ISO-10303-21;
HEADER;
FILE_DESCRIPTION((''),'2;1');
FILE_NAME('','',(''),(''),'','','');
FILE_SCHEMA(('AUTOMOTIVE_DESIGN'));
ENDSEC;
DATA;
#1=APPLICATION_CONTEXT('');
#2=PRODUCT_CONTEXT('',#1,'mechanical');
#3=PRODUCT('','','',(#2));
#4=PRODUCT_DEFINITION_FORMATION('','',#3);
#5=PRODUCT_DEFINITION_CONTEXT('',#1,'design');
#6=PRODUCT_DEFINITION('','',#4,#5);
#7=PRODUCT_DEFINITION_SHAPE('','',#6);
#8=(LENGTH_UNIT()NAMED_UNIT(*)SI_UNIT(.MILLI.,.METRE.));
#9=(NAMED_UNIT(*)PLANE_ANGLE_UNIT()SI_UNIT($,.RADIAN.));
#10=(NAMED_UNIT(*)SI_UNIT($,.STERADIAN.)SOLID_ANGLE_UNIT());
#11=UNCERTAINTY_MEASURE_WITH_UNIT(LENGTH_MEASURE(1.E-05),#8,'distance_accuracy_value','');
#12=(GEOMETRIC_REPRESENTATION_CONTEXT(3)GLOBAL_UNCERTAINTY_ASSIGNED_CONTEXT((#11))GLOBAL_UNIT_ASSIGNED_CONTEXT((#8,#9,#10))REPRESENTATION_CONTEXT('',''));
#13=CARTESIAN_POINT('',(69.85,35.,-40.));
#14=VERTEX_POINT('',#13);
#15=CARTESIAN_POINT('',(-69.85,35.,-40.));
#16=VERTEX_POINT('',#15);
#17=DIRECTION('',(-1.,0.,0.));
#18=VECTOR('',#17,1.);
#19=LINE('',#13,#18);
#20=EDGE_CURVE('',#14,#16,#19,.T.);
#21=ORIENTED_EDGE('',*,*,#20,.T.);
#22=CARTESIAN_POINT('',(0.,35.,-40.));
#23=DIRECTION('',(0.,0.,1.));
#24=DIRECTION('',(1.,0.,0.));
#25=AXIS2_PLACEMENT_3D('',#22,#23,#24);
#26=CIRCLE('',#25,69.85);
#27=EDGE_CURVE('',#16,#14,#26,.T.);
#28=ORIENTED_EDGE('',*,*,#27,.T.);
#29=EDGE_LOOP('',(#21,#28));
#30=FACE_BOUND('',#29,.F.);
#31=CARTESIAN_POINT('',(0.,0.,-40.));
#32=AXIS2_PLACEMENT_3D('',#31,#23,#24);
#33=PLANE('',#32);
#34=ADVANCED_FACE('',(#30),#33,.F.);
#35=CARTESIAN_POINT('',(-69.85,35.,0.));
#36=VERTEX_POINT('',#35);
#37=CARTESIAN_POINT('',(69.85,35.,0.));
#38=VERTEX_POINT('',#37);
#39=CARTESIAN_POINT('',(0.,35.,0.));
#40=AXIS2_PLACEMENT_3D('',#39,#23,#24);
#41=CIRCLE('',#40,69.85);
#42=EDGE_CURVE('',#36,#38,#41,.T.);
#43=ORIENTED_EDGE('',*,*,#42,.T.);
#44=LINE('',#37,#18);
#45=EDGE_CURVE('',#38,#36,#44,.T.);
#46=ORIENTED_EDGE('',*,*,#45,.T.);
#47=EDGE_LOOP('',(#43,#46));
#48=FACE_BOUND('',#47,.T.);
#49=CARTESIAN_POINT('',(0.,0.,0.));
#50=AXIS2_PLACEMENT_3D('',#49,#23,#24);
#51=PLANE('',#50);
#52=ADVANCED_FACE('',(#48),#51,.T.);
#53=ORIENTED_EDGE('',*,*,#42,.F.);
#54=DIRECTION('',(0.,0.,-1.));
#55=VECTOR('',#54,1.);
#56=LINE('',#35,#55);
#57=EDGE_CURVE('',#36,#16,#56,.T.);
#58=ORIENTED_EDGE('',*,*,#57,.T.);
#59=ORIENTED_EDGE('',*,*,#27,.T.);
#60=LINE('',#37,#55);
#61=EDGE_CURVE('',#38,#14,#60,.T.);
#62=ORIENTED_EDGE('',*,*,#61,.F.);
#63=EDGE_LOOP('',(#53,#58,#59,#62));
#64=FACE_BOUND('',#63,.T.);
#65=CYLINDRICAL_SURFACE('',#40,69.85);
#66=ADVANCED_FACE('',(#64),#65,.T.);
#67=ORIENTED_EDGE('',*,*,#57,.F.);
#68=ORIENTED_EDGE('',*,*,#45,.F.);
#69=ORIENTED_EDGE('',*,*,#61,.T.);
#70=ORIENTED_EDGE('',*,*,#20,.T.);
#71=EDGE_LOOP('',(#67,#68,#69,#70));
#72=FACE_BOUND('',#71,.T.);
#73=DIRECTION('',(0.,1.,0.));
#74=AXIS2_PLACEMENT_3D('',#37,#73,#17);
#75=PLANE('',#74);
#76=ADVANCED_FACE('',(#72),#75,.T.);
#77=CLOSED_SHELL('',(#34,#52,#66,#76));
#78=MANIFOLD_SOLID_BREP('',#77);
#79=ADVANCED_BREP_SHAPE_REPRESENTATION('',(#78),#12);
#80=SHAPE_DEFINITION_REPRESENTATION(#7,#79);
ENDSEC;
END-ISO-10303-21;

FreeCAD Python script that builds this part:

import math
import FreeCAD as App
import Part
import Sketcher

V = App.Vector
Q = App.Units.Quantity

doc = App.newDocument("Part")
body = doc.addObject("PartDesign::Body", "Body")

# Sketch on XY plane
sketch1 = body.newObject("Sketcher::SketchObject", "Sketch")
sketch1.AttachmentSupport = (doc.getObject("XY_Plane"), [""])
sketch1.MapMode = "FlatFace"
sketch1.addGeometry(Part.LineSegment(V(-70, 35, 0), V(-70, -35, 0)), False)
sketch1.addGeometry(Part.LineSegment(V(-70, -35, 0), V(70, -35, 0)), False)
sketch1.addGeometry(Part.LineSegment(V(70, -35, 0), V(70, 35, 0)), False)
sketch1.addGeometry(Part.LineSegment(V(70, 35, 0), V(-70, 35, 0)), False)
sketch1.addConstraint(Sketcher.Constraint("Coincident", 0, 2, 1, 1))
sketch1.addConstraint(Sketcher.Constraint("Coincident", 1, 2, 2, 1))
sketch1.addConstraint(Sketcher.Constraint("Coincident", 2, 2, 3, 1))
sketch1.addConstraint(Sketcher.Constraint("Coincident", 3, 2, 0, 1))
sketch1.addConstraint(Sketcher.Constraint("Vertical", 0))
sketch1.addConstraint(Sketcher.Constraint("Horizontal", 1))
sketch1.addConstraint(Sketcher.Constraint("Vertical", 2))
sketch1.addConstraint(Sketcher.Constraint("Horizontal", 3))
sketch1.addConstraint(Sketcher.Constraint("Symmetric", 0, 2, 2, 2, -1, 1))
sketch1.addConstraint(Sketcher.Constraint("DistanceX", 1, 1, 1, 2, Q("5.5 in")))
sketch1.addConstraint(Sketcher.Constraint("DistanceY", 0, 2, 0, 1, Q("2.7559 in")))
pad1 = body.newObject("PartDesign::Pad", "Pad")
pad1.Profile = sketch1
pad1.Length = Q("1.5748031 in")
pad1.Reversed = True

# Sketch on XY plane
sketch2 = body.newObject("Sketcher::SketchObject", "Sketch001")
sketch2.AttachmentSupport = (doc.getObject("XY_Plane"), [""])
sketch2.MapMode = "FlatFace"
sketch2.addGeometry(Part.ArcOfCircle(Part.Circle(V(0, 35, 0), V(0, 0, 1), 70), math.radians(180), math.radians(360)), False)
sketch2.addGeometry(Part.LineSegment(V(-70, 35, 0), V(-70, -35, 0)), False)
sketch2.addGeometry(Part.LineSegment(V(-70, -35, 0), V(70, -35, 0)), False)
sketch2.addGeometry(Part.LineSegment(V(70, -35, 0), V(70, 35, 0)), False)
sketch2.addConstraint(Sketcher.Constraint("Tangent", 0, 1, 1, 1))
sketch2.addConstraint(Sketcher.Constraint("Coincident", 1, 2, 2, 1))
sketch2.addConstraint(Sketcher.Constraint("Coincident", 2, 2, 3, 1))
sketch2.addConstraint(Sketcher.Constraint("Tangent", 3, 2, 0, 2))
sketch2.addConstraint(Sketcher.Constraint("Vertical", 1))
sketch2.addConstraint(Sketcher.Constraint("Horizontal", 2))
sketch2.addConstraint(Sketcher.Constraint("Vertical", 3))
sketch2.addConstraint(Sketcher.Constraint("Symmetric", 0, 1, 2, 2, -1, 1))
sketch2.addConstraint(Sketcher.Constraint("Radius", 0, Q("2.75 in")))
sketch2.addConstraint(Sketcher.Constraint("DistanceY", 1, 2, 1, 1, Q("2.7559 in")))
pocket1 = body.newObject("PartDesign::Pocket", "Pocket")
pocket1.Profile = sketch2
pocket1.Length = 73.1234

doc.recompute()
